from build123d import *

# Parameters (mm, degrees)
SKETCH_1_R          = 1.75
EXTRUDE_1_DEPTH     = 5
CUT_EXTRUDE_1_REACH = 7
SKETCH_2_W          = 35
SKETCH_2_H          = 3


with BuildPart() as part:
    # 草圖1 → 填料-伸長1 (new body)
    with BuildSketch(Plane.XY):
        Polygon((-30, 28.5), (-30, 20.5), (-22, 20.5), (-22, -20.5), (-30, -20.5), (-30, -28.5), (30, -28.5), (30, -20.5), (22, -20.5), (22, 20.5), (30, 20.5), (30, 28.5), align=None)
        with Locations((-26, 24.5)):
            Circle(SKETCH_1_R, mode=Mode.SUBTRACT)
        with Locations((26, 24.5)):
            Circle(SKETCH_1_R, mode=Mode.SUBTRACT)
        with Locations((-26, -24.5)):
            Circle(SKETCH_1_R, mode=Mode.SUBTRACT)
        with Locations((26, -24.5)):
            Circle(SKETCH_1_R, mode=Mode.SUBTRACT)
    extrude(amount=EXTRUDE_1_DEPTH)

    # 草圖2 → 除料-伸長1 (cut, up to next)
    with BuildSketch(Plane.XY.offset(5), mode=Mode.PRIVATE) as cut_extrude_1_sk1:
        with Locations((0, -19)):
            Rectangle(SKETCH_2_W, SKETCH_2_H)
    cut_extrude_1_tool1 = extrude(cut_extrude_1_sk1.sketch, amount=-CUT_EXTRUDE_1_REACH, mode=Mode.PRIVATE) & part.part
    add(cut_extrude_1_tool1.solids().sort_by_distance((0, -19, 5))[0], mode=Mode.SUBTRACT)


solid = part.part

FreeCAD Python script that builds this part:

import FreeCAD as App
import Part
import Sketcher
Q = App.Units.Quantity

doc = App.newDocument("Part")
params = doc.addObject("Spreadsheet::Sheet", "Params")
for row, (alias, value) in enumerate([
    ("sketch1_diameter", "3.5 mm"),
    ("sketch1_width", "8 mm"),
    ("sketch1_width2", "60 mm"),
    ("sketch1_height", "41 mm"),
    ("pad1_length", "5 mm"),
    ("sketch2_width", "35 mm"),
    ("sketch2_height", "3 mm"),
], start=1):
    params.set(f"A{row}", alias)
    params.set(f"B{row}", "=" + value)
    params.setAlias(f"B{row}", alias)

body = doc.addObject("PartDesign::Body", "Body")

# Sketch on XY plane
sketch1 = body.newObject("Sketcher::SketchObject", "Sketch")
sketch1.AttachmentSupport = (doc.getObject("XY_Plane"), [""])
sketch1.MapMode = "FlatFace"
sketch1.addGeometry([
    Part.LineSegment(App.Vector(-30, 28.5, 0), App.Vector(-30, 20.5, 0)),  # 0
    Part.LineSegment(App.Vector(-30, 20.5, 0), App.Vector(-22, 20.5, 0)),  # 1
    Part.LineSegment(App.Vector(-22, 20.5, 0), App.Vector(-22, -20.5, 0)),  # 2
    Part.LineSegment(App.Vector(-22, -20.5, 0), App.Vector(-30, -20.5, 0)),  # 3
    Part.LineSegment(App.Vector(-30, -20.5, 0), App.Vector(-30, -28.5, 0)),  # 4
    Part.LineSegment(App.Vector(-30, -28.5, 0), App.Vector(30, -28.5, 0)),  # 5
    Part.LineSegment(App.Vector(30, -28.5, 0), App.Vector(30, -20.5, 0)),  # 6
    Part.LineSegment(App.Vector(30, -20.5, 0), App.Vector(22, -20.5, 0)),  # 7
    Part.LineSegment(App.Vector(22, -20.5, 0), App.Vector(22, 20.5, 0)),  # 8
    Part.LineSegment(App.Vector(22, 20.5, 0), App.Vector(30, 20.5, 0)),  # 9
    Part.LineSegment(App.Vector(30, 20.5, 0), App.Vector(30, 28.5, 0)),  # 10
    Part.LineSegment(App.Vector(30, 28.5, 0), App.Vector(-30, 28.5, 0)),  # 11
    Part.Circle(App.Vector(-26, -24.5, 0), App.Vector(0, 0, 1), 1.8),  # 12
    Part.Circle(App.Vector(26, -24.5, 0), App.Vector(0, 0, 1), 1.8),  # 13
    Part.Circle(App.Vector(-26, 24.5, 0), App.Vector(0, 0, 1), 1.8),  # 14
    Part.Circle(App.Vector(26, 24.5, 0), App.Vector(0, 0, 1), 1.8),  # 15
], False)
sketch1.addConstraint([
    Sketcher.Constraint("Coincident", 0, 2, 1, 1),
    Sketcher.Constraint("Coincident", 1, 2, 2, 1),
    Sketcher.Constraint("Coincident", 2, 2, 3, 1),
    Sketcher.Constraint("Coincident", 3, 2, 4, 1),
    Sketcher.Constraint("Coincident", 4, 2, 5, 1),
    Sketcher.Constraint("Coincident", 5, 2, 6, 1),
    Sketcher.Constraint("Coincident", 6, 2, 7, 1),
    Sketcher.Constraint("Coincident", 7, 2, 8, 1),
    Sketcher.Constraint("Coincident", 8, 2, 9, 1),
    Sketcher.Constraint("Coincident", 9, 2, 10, 1),
    Sketcher.Constraint("Coincident", 10, 2, 11, 1),
    Sketcher.Constraint("Coincident", 11, 2, 0, 1),
    Sketcher.Constraint("Vertical", 0),
    Sketcher.Constraint("Horizontal", 1),
    Sketcher.Constraint("Vertical", 2),
    Sketcher.Constraint("Horizontal", 3),
    Sketcher.Constraint("Vertical", 4),
    Sketcher.Constraint("Horizontal", 5),
    Sketcher.Constraint("Vertical", 6),
    Sketcher.Constraint("Horizontal", 7),
    Sketcher.Constraint("Vertical", 8),
    Sketcher.Constraint("Horizontal", 9),
    Sketcher.Constraint("Vertical", 10),
    Sketcher.Constraint("Horizontal", 11),
    Sketcher.Constraint("Equal", 12, 13),
    Sketcher.Constraint("Equal", 13, 14),
    Sketcher.Constraint("Equal", 14, 15),
    Sketcher.Constraint("Symmetric", 13, 3, 14, 3, -1, 1),
    Sketcher.Constraint("Symmetric", 12, 3, 15, 3, -1, 1),
    Sketcher.Constraint("Symmetric", 0, 2, 6, 2, -1, 1),
    Sketcher.Constraint("Symmetric", 2, 2, 8, 2, -1, 1),
    Sketcher.Constraint("Symmetric", 4, 2, 10, 2, -1, 1),
    Sketcher.Constraint("Symmetric", 12, 3, 13, 3, -2),
    Sketcher.Constraint("Symmetric", 3, 2, 6, 2, -2),
    Sketcher.Constraint("Equal", 9, 0),
    Sketcher.Constraint("Diameter", 12, Q("3.5 mm")),
    Sketcher.Constraint("DistanceX", 1, 1, 1, 2, Q("8 mm")),
    Sketcher.Constraint("DistanceX", 5, 1, 5, 2, Q("60 mm")),
    Sketcher.Constraint("DistanceY", 2, 2, 2, 1, Q("41 mm")),
    Sketcher.Constraint("DistanceX", 12, 3, -1, 1, Q("26 mm")),
    Sketcher.Constraint("DistanceY", 12, 3, 14, 3, Q("49 mm")),
])
sketch1.setExpression("Constraints[35]", "Params.sketch1_diameter")
sketch1.setExpression("Constraints[36]", "Params.sketch1_width")
sketch1.setExpression("Constraints[37]", "Params.sketch1_width2")
sketch1.setExpression("Constraints[38]", "Params.sketch1_height")
pad1 = body.newObject("PartDesign::Pad", "Pad")
pad1.Profile = sketch1
pad1.setExpression("Length", "Params.pad1_length")

# Sketch on XY plane
sketch2 = body.newObject("Sketcher::SketchObject", "Sketch001")
sketch2.AttachmentSupport = (doc.getObject("XY_Plane"), [""])
sketch2.MapMode = "FlatFace"
sketch2.AttachmentOffset = App.Placement(App.Vector(0, 0, 5), App.Rotation())
sketch2.addGeometry([
    Part.LineSegment(App.Vector(-17.5, -17.5, 0), App.Vector(-17.5, -20.5, 0)),
    Part.LineSegment(App.Vector(-17.5, -20.5, 0), App.Vector(17.5, -20.5, 0)),
    Part.LineSegment(App.Vector(17.5, -20.5, 0), App.Vector(17.5, -17.5, 0)),
    Part.LineSegment(App.Vector(17.5, -17.5, 0), App.Vector(-17.5, -17.5, 0)),
], False)
sketch2.addConstraint([
    Sketcher.Constraint("Coincident", 0, 2, 1, 1),
    Sketcher.Constraint("Coincident", 1, 2, 2, 1),
    Sketcher.Constraint("Coincident", 2, 2, 3, 1),
    Sketcher.Constraint("Coincident", 3, 2, 0, 1),
    Sketcher.Constraint("Vertical", 0),
    Sketcher.Constraint("Horizontal", 1),
    Sketcher.Constraint("Vertical", 2),
    Sketcher.Constraint("Horizontal", 3),
    Sketcher.Constraint("DistanceX", 1, 1, 1, 2, Q("35 mm")),
    Sketcher.Constraint("DistanceY", 0, 2, 0, 1, Q("3 mm")),
    Sketcher.Constraint("DistanceX", 0, 2, -1, 1, Q("17.5 mm")),
    Sketcher.Constraint("DistanceY", 0, 2, -1, 1, Q("20.5 mm")),
])
sketch2.setExpression("Constraints[8]", "Params.sketch2_width")
sketch2.setExpression("Constraints[9]", "Params.sketch2_height")
pocket1 = body.newObject("PartDesign::Pocket", "Pocket")
pocket1.Profile = sketch2
pocket1.Type = "UpToFirst"

doc.recompute()
